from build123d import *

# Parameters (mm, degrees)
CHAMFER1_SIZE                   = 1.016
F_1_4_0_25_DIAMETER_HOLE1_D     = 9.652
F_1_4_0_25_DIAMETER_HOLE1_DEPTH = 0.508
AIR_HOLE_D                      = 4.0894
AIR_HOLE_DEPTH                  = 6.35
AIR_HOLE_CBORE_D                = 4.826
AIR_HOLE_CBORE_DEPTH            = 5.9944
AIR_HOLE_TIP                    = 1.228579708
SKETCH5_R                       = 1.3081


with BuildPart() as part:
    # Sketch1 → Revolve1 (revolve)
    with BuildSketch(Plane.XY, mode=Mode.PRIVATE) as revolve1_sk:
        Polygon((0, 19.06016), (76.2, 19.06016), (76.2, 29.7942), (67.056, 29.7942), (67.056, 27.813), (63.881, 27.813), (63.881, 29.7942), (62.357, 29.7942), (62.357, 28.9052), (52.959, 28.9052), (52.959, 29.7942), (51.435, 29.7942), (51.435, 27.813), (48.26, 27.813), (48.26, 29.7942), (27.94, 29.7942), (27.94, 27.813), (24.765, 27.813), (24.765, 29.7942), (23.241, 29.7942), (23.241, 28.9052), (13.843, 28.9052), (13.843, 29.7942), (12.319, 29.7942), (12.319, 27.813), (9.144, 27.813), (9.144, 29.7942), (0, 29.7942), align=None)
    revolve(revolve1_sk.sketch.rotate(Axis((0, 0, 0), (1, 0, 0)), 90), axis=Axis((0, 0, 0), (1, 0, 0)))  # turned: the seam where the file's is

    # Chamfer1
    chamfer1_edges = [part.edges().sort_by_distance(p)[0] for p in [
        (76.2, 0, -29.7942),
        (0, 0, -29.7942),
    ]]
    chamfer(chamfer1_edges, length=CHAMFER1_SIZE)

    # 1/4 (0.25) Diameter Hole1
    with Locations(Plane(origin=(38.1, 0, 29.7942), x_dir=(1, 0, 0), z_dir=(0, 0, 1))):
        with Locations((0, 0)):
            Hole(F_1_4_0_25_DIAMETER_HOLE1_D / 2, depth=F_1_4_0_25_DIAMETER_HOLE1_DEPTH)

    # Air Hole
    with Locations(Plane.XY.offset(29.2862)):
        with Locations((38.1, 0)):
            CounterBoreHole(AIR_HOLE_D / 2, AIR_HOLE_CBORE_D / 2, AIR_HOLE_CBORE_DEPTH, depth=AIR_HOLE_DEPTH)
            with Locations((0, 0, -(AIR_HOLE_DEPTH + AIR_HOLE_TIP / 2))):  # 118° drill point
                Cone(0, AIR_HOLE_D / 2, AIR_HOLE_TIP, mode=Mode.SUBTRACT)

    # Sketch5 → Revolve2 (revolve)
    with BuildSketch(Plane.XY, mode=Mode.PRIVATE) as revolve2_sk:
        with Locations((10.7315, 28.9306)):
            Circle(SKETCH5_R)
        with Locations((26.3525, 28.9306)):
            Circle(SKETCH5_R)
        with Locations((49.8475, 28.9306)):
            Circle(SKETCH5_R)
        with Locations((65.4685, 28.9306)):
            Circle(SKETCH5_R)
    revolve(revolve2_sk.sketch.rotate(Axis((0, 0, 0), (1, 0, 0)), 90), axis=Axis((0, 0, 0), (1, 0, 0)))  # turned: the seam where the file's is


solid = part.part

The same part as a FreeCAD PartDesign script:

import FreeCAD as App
import Part
import Sketcher
from FreeCAD import Vector
Q = App.Units.Quantity


def edges_at(feature, points):
    """Names of the edges that pass closest to the given points."""
    edges = feature.Shape.Edges
    near = lambda p: min(range(len(edges)), key=lambda i: edges[i].distToShape(Part.Vertex(*p))[0])
    return sorted({f"Edge{near(p) + 1}" for p in points})

doc = App.newDocument("Part")
body = doc.addObject("PartDesign::Body", "Body")

# Sketch on XY plane
sketch1 = doc.addObject("Sketcher::SketchObject", "Sketch")
body.addObject(sketch1)
sketch1.AttachmentSupport = (doc.XY_Plane, [""])
sketch1.MapMode = "FlatFace"
sketch1.addGeometry([
    Part.LineSegment(Vector(0, 19.1, 0), Vector(76.2, 19.1, 0)),  # 0
    Part.LineSegment(Vector(76.2, 19.1, 0), Vector(76.2, 29.8, 0)),  # 1
    Part.LineSegment(Vector(76.2, 29.8, 0), Vector(67.1, 29.8, 0)),  # 2
    Part.LineSegment(Vector(67.1, 29.8, 0), Vector(67.1, 27.8, 0)),  # 3
    Part.LineSegment(Vector(67.1, 27.8, 0), Vector(63.9, 27.8, 0)),  # 4
    Part.LineSegment(Vector(63.9, 27.8, 0), Vector(63.9, 29.8, 0)),  # 5
    Part.LineSegment(Vector(63.9, 29.8, 0), Vector(62.4, 29.8, 0)),  # 6
    Part.LineSegment(Vector(62.4, 29.8, 0), Vector(62.4, 28.9, 0)),  # 7
    Part.LineSegment(Vector(62.4, 28.9, 0), Vector(53, 28.9, 0)),  # 8
    Part.LineSegment(Vector(53, 28.9, 0), Vector(53, 29.8, 0)),  # 9
    Part.LineSegment(Vector(53, 29.8, 0), Vector(51.4, 29.8, 0)),  # 10
    Part.LineSegment(Vector(51.4, 29.8, 0), Vector(51.4, 27.8, 0)),  # 11
    Part.LineSegment(Vector(51.4, 27.8, 0), Vector(48.3, 27.8, 0)),  # 12
    Part.LineSegment(Vector(48.3, 27.8, 0), Vector(48.3, 29.8, 0)),  # 13
    Part.LineSegment(Vector(48.3, 29.8, 0), Vector(27.9, 29.8, 0)),  # 14
    Part.LineSegment(Vector(27.9, 29.8, 0), Vector(27.9, 27.8, 0)),  # 15
    Part.LineSegment(Vector(27.9, 27.8, 0), Vector(24.8, 27.8, 0)),  # 16
    Part.LineSegment(Vector(24.8, 27.8, 0), Vector(24.8, 29.8, 0)),  # 17
    Part.LineSegment(Vector(24.8, 29.8, 0), Vector(23.2, 29.8, 0)),  # 18
    Part.LineSegment(Vector(23.2, 29.8, 0), Vector(23.2, 28.9, 0)),  # 19
    Part.LineSegment(Vector(23.2, 28.9, 0), Vector(13.8, 28.9, 0)),  # 20
    Part.LineSegment(Vector(13.8, 28.9, 0), Vector(13.8, 29.8, 0)),  # 21
    Part.LineSegment(Vector(13.8, 29.8, 0), Vector(12.3, 29.8, 0)),  # 22
    Part.LineSegment(Vector(12.3, 29.8, 0), Vector(12.3, 27.8, 0)),  # 23
    Part.LineSegment(Vector(12.3, 27.8, 0), Vector(9.1, 27.8, 0)),  # 24
    Part.LineSegment(Vector(9.1, 27.8, 0), Vector(9.1, 29.8, 0)),  # 25
    Part.LineSegment(Vector(9.1, 29.8, 0), Vector(0, 29.8, 0)),  # 26
    Part.LineSegment(Vector(0, 29.8, 0), Vector(0, 19.1, 0)),  # 27
], False)
sketch1.addConstraint([
    Sketcher.Constraint("Coincident", 0, 2, 1, 1),
    Sketcher.Constraint("Coincident", 1, 2, 2, 1),
    Sketcher.Constraint("Coincident", 2, 2, 3, 1),
    Sketcher.Constraint("Coincident", 3, 2, 4, 1),
    Sketcher.Constraint("Coincident", 4, 2, 5, 1),
    Sketcher.Constraint("Coincident", 5, 2, 6, 1),
    Sketcher.Constraint("Coincident", 6, 2, 7, 1),
    Sketcher.Constraint("Coincident", 7, 2, 8, 1),
    Sketcher.Constraint("Coincident", 8, 2, 9, 1),
    Sketcher.Constraint("Coincident", 9, 2, 10, 1),
    Sketcher.Constraint("Coincident", 10, 2, 11, 1),
    Sketcher.Constraint("Coincident", 11, 2, 12, 1),
    Sketcher.Constraint("Coincident", 12, 2, 13, 1),
    Sketcher.Constraint("Coincident", 13, 2, 14, 1),
    Sketcher.Constraint("Coincident", 14, 2, 15, 1),
    Sketcher.Constraint("Coincident", 15, 2, 16, 1),
    Sketcher.Constraint("Coincident", 16, 2, 17, 1),
    Sketcher.Constraint("Coincident", 17, 2, 18, 1),
    Sketcher.Constraint("Coincident", 18, 2, 19, 1),
    Sketcher.Constraint("Coincident", 19, 2, 20, 1),
    Sketcher.Constraint("Coincident", 20, 2, 21, 1),
    Sketcher.Constraint("Coincident", 21, 2, 22, 1),
    Sketcher.Constraint("Coincident", 22, 2, 23, 1),
    Sketcher.Constraint("Coincident", 23, 2, 24, 1),
    Sketcher.Constraint("Coincident", 24, 2, 25, 1),
    Sketcher.Constraint("Coincident", 25, 2, 26, 1),
    Sketcher.Constraint("Coincident", 26, 2, 27, 1),
    Sketcher.Constraint("Coincident", 27, 2, 0, 1),
    Sketcher.Constraint("Horizontal", 0),
    Sketcher.Constraint("Vertical", 1),
    Sketcher.Constraint("Horizontal", 2),
    Sketcher.Constraint("Vertical", 3),
    Sketcher.Constraint("Horizontal", 4),
    Sketcher.Constraint("Vertical", 5),
    Sketcher.Constraint("Horizontal", 6),
    Sketcher.Constraint("Vertical", 7),
    Sketcher.Constraint("Horizontal", 8),
    Sketcher.Constraint("Vertical", 9),
    Sketcher.Constraint("Horizontal", 10),
    Sketcher.Constraint("Vertical", 11),
    Sketcher.Constraint("Horizontal", 12),
    Sketcher.Constraint("Vertical", 13),
    Sketcher.Constraint("Horizontal", 14),
    Sketcher.Constraint("Vertical", 15),
    Sketcher.Constraint("Horizontal", 16),
    Sketcher.Constraint("Vertical", 17),
    Sketcher.Constraint("Horizontal", 18),
    Sketcher.Constraint("Vertical", 19),
    Sketcher.Constraint("Horizontal", 20),
    Sketcher.Constraint("Vertical", 21),
    Sketcher.Constraint("Horizontal", 22),
    Sketcher.Constraint("Vertical", 23),
    Sketcher.Constraint("Horizontal", 24),
    Sketcher.Constraint("Vertical", 25),
    Sketcher.Constraint("Horizontal", 26),
    Sketcher.Constraint("Vertical", 27),
    Sketcher.Constraint("PointOnObject", 26, 2, -2),
    Sketcher.Constraint("Horizontal", 2, 2, 5, 2),
    Sketcher.Constraint("Horizontal", 6, 2, 9, 2),
    Sketcher.Constraint("Horizontal", 4, 2, 11, 2),
    Sketcher.Constraint("Horizontal", 10, 2, 13, 2),
    Sketcher.Constraint("Horizontal", 12, 2, 15, 2),
    Sketcher.Constraint("Horizontal", 14, 2, 17, 2),
    Sketcher.Constraint("Horizontal", 8, 2, 19, 2),
    Sketcher.Constraint("Horizontal", 18, 2, 21, 2),
    Sketcher.Constraint("Horizontal", 16, 2, 23, 2),
    Sketcher.Constraint("Horizontal", 22, 2, 25, 2),
    Sketcher.Constraint("Equal", 6, 10),
    Sketcher.Constraint("Equal", 4, 12),
    Sketcher.Constraint("Equal", 12, 16),
    Sketcher.Constraint("Equal", 10, 18),
    Sketcher.Constraint("Equal", 8, 20),
    Sketcher.Constraint("Equal", 18, 22),
    Sketcher.Constraint("Equal", 16, 24),
    Sketcher.Constraint("Equal", 2, 26),
    Sketcher.Constraint("DistanceX", 0, 1, 0, 2, Q("3 in")),
    Sketcher.Constraint("DistanceX", 14, 2, 14, 1, Q("0.8 in")),
    Sketcher.Constraint("DistanceX", 2, 2, 2, 1, Q("0.36 in")),
    Sketcher.Constraint("DistanceX", 6, 2, 6, 1, Q("0.06 in")),
    Sketcher.Constraint("DistanceX", 8, 2, 8, 1, Q("0.37 in")),
    Sketcher.Constraint("DistanceY", 3, 2, 3, 1, Q("0.078 in")),
    Sketcher.Constraint("DistanceY", 7, 2, 7, 1, Q("0.035 in")),
    Sketcher.Constraint("DistanceY", 1, 1, 1, 2, Q("0.4226 in")),
    Sketcher.Constraint("DistanceY", -1, 1, 1, 2, Q("1.173 in")),
])
revolution = doc.addObject("PartDesign::Revolution", "Revolution")
body.addObject(revolution)
revolution.Profile = sketch1
revolution.ReferenceAxis = (sketch1, ["H_Axis"])
revolution.Angle = 360
doc.recompute()

chamfer = doc.addObject("PartDesign::Chamfer", "Chamfer")
body.addObject(chamfer)
chamfer.Base = (revolution, edges_at(revolution, [(76.2, 0, -29.794), (0, 0, -29.794)]))
chamfer.Size = Q("0.04 in")

# Sketch on XY plane
sketch2 = doc.addObject("Sketcher::SketchObject", "Sketch001")
body.addObject(sketch2)
sketch2.AttachmentSupport = (doc.XY_Plane, [""])
sketch2.MapMode = "FlatFace"
sketch2.AttachmentOffset = App.Placement(Vector(0, 0, 1.173 * 25.4), App.Rotation())
sketch2.addGeometry(Part.Circle(Vector(38.1, 0, 0), Vector(0, 0, 1), 4.8), False)
sketch2.addConstraint([
    Sketcher.Constraint("PointOnObject", 0, 3, -1),
    Sketcher.Constraint("Diameter", 0, Q("0.38 in")),
    Sketcher.Constraint("DistanceX", -1, 1, 0, 3, Q("1.5 in")),
])
doc.recompute()
hole = doc.addObject("PartDesign::Hole", "Hole")
body.addObject(hole)
hole.Profile = sketch2
hole.ThreadType = "None"
hole.Diameter = Q("0.38 in")
hole.DepthType = "Dimension"
hole.Depth = Q("0.02 in")
hole.DrillPoint = "Flat"

# Sketch on XY plane
sketch3 = doc.addObject("Sketcher::SketchObject", "Sketch002")
body.addObject(sketch3)
sketch3.AttachmentSupport = (doc.XY_Plane, [""])
sketch3.MapMode = "FlatFace"
sketch3.AttachmentOffset = App.Placement(Vector(0, 0, 1.153 * 25.4), App.Rotation())
sketch3.addGeometry(Part.Circle(Vector(38.1, 0, 0), Vector(0, 0, 1), 2), False)
sketch3.addConstraint([
    Sketcher.Constraint("PointOnObject", 0, 3, -1),
    Sketcher.Constraint("Diameter", 0, Q("0.161 in")),
    Sketcher.Constraint("DistanceX", -1, 1, 0, 3, Q("1.5 in")),
])
doc.recompute()
hole2 = doc.addObject("PartDesign::Hole", "Hole001")
body.addObject(hole2)
hole2.Profile = sketch3
hole2.ThreadType = "None"
hole2.Diameter = Q("0.161 in")
hole2.DepthType = "Dimension"
hole2.Depth = Q("0.25 in")
hole2.DrillPoint = "Angled"
hole2.DrillPointAngle = 118
hole2.HoleCutType = "Counterbore"
hole2.HoleCutDiameter = Q("0.19 in")
hole2.HoleCutDepth = Q("0.236 in")

# Sketch on XY plane
sketch4 = doc.addObject("Sketcher::SketchObject", "Sketch003")
body.addObject(sketch4)
sketch4.AttachmentSupport = (doc.XY_Plane, [""])
sketch4.MapMode = "FlatFace"
sketch4.addGeometry([
    Part.Circle(Vector(10.7, 28.9, 0), Vector(0, 0, 1), 1.3),
    Part.Circle(Vector(26.4, 28.9, 0), Vector(0, 0, 1), 1.3),
    Part.Circle(Vector(49.8, 28.9, 0), Vector(0, 0, 1), 1.3),
    Part.Circle(Vector(65.5, 28.9, 0), Vector(0, 0, 1), 1.3),
], False)
sketch4.addConstraint([
    Sketcher.Constraint("Equal", 0, 1),
    Sketcher.Constraint("Equal", 1, 2),
    Sketcher.Constraint("Equal", 2, 3),
    Sketcher.Constraint("Horizontal", 0, 3, 1, 3),
    Sketcher.Constraint("Horizontal", 1, 3, 2, 3),
    Sketcher.Constraint("Horizontal", 2, 3, 3, 3),
    Sketcher.Constraint("Diameter", 0, Q("0.103 in")),
    Sketcher.Constraint("DistanceX", 0, 3, 2, 3, Q("1.54 in")),
    Sketcher.Constraint("DistanceX", 1, 3, 3, 3, Q("1.54 in")),
    Sketcher.Constraint("DistanceY", -1, 1, 0, 3, Q("1.139 in")),
    Sketcher.Constraint("DistanceX", 0, 3, 1, 3, Q("0.615 in")),
    Sketcher.Constraint("DistanceX", -1, 1, 0, 3, Q("0.4225 in")),
])
revolution2 = doc.addObject("PartDesign::Revolution", "Revolution001")
body.addObject(revolution2)
revolution2.Profile = sketch4
revolution2.ReferenceAxis = (sketch4, ["H_Axis"])
revolution2.Angle = 360

doc.recompute()
